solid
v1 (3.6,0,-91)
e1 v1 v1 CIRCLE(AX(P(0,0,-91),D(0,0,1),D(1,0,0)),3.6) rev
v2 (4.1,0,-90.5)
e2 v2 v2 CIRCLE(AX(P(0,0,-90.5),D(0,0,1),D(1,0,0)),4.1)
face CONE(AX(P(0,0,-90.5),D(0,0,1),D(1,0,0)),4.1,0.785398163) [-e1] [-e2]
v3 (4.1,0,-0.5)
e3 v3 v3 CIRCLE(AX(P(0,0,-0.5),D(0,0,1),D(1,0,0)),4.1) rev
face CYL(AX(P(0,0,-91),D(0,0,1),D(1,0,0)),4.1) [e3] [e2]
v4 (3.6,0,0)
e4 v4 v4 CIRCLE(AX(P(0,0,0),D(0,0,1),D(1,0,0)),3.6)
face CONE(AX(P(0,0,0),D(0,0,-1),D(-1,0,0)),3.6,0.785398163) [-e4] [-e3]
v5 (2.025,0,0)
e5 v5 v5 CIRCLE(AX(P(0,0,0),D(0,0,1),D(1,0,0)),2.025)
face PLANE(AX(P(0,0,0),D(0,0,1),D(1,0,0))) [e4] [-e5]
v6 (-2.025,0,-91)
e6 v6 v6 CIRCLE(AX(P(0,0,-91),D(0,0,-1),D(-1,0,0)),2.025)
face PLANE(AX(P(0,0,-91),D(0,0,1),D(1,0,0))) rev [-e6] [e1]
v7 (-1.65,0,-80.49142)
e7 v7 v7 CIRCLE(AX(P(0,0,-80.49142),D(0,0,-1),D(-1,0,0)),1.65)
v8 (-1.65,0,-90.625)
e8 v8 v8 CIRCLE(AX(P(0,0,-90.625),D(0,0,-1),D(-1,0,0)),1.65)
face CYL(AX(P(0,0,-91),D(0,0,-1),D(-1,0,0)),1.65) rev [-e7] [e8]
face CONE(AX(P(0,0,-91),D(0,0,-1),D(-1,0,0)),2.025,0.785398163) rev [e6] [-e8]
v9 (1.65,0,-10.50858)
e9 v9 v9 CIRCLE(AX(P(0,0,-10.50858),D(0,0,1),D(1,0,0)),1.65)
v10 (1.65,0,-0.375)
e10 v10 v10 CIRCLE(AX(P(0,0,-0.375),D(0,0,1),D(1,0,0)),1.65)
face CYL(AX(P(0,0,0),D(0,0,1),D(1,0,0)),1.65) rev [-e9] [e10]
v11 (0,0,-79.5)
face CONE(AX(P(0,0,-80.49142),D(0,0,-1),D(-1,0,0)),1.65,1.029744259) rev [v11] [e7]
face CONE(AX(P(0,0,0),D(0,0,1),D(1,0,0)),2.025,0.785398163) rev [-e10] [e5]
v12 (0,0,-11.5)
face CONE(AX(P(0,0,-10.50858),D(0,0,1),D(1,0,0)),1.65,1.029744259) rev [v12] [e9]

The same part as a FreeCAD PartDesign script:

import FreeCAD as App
import Part
import Sketcher
Q = App.Units.Quantity


def edges_at(feature, points):
    """Names of the edges that pass closest to the given points."""
    edges = feature.Shape.Edges
    near = lambda p: min(range(len(edges)), key=lambda i: edges[i].distToShape(Part.Vertex(*p))[0])
    return sorted({f"Edge{near(p) + 1}" for p in points})

doc = App.newDocument("Part")
body = doc.addObject("PartDesign::Body", "Body")

sketch1 = body.newObject("Sketcher::SketchObject", "Sketch")
sketch1.AttachmentSupport = (doc.getObject("XY_Plane"), [""])
sketch1.MapMode = "FlatFace"
sketch1.addGeometry(Part.Circle(App.Vector(0, 0, 0), App.Vector(0, 0, 1), 4.1), False)
sketch1.addConstraint([
    Sketcher.Constraint("Coincident", 0, 3, -1, 1),
    Sketcher.Constraint("Diameter", 0, Q("8.2 mm")),
])
pad1 = body.newObject("PartDesign::Pad", "Pad")
pad1.Profile = sketch1
pad1.Length = 91
pad1.Reversed = True

sketch2 = body.newObject("Sketcher::SketchObject", "Sketch001")
sketch2.AttachmentSupport = (doc.getObject("XY_Plane"), [""])
sketch2.MapMode = "FlatFace"
sketch2.addGeometry(Part.Circle(App.Vector(0, 0, 0), App.Vector(0, 0, 1), 1.6), False)
sketch2.addConstraint([
    Sketcher.Constraint("Coincident", 0, 3, -1, 1),
    Sketcher.Constraint("Diameter", 0, Q("3.3 mm")),
])
doc.recompute()
hole = body.newObject("PartDesign::Hole", "Hole")
hole.Profile = sketch2
hole.ThreadType = "None"
hole.Diameter = 3.3
hole.DepthType = "Dimension"
hole.Depth = 10.50858
hole.DrillPoint = "Angled"
hole.DrillPointAngle = 118
hole.HoleCutType = "Countersink"
hole.HoleCutDiameter = 4.05
hole.HoleCutCountersinkAngle = 90

sketch3 = body.newObject("Sketcher::SketchObject", "Sketch002")
sketch3.AttachmentSupport = (doc.getObject("XY_Plane"), [""])
sketch3.MapMode = "FlatFace"
sketch3.AttachmentOffset = App.Placement(App.Vector(0, 0, -91), App.Rotation())
sketch3.addGeometry(Part.Circle(App.Vector(0, 0, 0), App.Vector(0, 0, 1), 1.6), False)
sketch3.addConstraint([
    Sketcher.Constraint("Coincident", 0, 3, -1, 1),
    Sketcher.Constraint("Diameter", 0, Q("3.3 mm")),
])
doc.recompute()
hole2 = body.newObject("PartDesign::Hole", "Hole001")
hole2.Profile = sketch3
hole2.ThreadType = "None"
hole2.Diameter = 3.3
hole2.DepthType = "Dimension"
hole2.Depth = 10.50858
hole2.DrillPoint = "Angled"
hole2.DrillPointAngle = 118
hole2.HoleCutType = "Countersink"
hole2.HoleCutDiameter = 4.05
hole2.HoleCutCountersinkAngle = 90
hole2.Reversed = True
doc.recompute()

chamfer = body.newObject("PartDesign::Chamfer", "Chamfer")
chamfer.Base = (hole2, edges_at(hole2, [(-4.1, 0, 0), (-4.1, 0, -91)]))
chamfer.Size = 0.5

doc.recompute()
